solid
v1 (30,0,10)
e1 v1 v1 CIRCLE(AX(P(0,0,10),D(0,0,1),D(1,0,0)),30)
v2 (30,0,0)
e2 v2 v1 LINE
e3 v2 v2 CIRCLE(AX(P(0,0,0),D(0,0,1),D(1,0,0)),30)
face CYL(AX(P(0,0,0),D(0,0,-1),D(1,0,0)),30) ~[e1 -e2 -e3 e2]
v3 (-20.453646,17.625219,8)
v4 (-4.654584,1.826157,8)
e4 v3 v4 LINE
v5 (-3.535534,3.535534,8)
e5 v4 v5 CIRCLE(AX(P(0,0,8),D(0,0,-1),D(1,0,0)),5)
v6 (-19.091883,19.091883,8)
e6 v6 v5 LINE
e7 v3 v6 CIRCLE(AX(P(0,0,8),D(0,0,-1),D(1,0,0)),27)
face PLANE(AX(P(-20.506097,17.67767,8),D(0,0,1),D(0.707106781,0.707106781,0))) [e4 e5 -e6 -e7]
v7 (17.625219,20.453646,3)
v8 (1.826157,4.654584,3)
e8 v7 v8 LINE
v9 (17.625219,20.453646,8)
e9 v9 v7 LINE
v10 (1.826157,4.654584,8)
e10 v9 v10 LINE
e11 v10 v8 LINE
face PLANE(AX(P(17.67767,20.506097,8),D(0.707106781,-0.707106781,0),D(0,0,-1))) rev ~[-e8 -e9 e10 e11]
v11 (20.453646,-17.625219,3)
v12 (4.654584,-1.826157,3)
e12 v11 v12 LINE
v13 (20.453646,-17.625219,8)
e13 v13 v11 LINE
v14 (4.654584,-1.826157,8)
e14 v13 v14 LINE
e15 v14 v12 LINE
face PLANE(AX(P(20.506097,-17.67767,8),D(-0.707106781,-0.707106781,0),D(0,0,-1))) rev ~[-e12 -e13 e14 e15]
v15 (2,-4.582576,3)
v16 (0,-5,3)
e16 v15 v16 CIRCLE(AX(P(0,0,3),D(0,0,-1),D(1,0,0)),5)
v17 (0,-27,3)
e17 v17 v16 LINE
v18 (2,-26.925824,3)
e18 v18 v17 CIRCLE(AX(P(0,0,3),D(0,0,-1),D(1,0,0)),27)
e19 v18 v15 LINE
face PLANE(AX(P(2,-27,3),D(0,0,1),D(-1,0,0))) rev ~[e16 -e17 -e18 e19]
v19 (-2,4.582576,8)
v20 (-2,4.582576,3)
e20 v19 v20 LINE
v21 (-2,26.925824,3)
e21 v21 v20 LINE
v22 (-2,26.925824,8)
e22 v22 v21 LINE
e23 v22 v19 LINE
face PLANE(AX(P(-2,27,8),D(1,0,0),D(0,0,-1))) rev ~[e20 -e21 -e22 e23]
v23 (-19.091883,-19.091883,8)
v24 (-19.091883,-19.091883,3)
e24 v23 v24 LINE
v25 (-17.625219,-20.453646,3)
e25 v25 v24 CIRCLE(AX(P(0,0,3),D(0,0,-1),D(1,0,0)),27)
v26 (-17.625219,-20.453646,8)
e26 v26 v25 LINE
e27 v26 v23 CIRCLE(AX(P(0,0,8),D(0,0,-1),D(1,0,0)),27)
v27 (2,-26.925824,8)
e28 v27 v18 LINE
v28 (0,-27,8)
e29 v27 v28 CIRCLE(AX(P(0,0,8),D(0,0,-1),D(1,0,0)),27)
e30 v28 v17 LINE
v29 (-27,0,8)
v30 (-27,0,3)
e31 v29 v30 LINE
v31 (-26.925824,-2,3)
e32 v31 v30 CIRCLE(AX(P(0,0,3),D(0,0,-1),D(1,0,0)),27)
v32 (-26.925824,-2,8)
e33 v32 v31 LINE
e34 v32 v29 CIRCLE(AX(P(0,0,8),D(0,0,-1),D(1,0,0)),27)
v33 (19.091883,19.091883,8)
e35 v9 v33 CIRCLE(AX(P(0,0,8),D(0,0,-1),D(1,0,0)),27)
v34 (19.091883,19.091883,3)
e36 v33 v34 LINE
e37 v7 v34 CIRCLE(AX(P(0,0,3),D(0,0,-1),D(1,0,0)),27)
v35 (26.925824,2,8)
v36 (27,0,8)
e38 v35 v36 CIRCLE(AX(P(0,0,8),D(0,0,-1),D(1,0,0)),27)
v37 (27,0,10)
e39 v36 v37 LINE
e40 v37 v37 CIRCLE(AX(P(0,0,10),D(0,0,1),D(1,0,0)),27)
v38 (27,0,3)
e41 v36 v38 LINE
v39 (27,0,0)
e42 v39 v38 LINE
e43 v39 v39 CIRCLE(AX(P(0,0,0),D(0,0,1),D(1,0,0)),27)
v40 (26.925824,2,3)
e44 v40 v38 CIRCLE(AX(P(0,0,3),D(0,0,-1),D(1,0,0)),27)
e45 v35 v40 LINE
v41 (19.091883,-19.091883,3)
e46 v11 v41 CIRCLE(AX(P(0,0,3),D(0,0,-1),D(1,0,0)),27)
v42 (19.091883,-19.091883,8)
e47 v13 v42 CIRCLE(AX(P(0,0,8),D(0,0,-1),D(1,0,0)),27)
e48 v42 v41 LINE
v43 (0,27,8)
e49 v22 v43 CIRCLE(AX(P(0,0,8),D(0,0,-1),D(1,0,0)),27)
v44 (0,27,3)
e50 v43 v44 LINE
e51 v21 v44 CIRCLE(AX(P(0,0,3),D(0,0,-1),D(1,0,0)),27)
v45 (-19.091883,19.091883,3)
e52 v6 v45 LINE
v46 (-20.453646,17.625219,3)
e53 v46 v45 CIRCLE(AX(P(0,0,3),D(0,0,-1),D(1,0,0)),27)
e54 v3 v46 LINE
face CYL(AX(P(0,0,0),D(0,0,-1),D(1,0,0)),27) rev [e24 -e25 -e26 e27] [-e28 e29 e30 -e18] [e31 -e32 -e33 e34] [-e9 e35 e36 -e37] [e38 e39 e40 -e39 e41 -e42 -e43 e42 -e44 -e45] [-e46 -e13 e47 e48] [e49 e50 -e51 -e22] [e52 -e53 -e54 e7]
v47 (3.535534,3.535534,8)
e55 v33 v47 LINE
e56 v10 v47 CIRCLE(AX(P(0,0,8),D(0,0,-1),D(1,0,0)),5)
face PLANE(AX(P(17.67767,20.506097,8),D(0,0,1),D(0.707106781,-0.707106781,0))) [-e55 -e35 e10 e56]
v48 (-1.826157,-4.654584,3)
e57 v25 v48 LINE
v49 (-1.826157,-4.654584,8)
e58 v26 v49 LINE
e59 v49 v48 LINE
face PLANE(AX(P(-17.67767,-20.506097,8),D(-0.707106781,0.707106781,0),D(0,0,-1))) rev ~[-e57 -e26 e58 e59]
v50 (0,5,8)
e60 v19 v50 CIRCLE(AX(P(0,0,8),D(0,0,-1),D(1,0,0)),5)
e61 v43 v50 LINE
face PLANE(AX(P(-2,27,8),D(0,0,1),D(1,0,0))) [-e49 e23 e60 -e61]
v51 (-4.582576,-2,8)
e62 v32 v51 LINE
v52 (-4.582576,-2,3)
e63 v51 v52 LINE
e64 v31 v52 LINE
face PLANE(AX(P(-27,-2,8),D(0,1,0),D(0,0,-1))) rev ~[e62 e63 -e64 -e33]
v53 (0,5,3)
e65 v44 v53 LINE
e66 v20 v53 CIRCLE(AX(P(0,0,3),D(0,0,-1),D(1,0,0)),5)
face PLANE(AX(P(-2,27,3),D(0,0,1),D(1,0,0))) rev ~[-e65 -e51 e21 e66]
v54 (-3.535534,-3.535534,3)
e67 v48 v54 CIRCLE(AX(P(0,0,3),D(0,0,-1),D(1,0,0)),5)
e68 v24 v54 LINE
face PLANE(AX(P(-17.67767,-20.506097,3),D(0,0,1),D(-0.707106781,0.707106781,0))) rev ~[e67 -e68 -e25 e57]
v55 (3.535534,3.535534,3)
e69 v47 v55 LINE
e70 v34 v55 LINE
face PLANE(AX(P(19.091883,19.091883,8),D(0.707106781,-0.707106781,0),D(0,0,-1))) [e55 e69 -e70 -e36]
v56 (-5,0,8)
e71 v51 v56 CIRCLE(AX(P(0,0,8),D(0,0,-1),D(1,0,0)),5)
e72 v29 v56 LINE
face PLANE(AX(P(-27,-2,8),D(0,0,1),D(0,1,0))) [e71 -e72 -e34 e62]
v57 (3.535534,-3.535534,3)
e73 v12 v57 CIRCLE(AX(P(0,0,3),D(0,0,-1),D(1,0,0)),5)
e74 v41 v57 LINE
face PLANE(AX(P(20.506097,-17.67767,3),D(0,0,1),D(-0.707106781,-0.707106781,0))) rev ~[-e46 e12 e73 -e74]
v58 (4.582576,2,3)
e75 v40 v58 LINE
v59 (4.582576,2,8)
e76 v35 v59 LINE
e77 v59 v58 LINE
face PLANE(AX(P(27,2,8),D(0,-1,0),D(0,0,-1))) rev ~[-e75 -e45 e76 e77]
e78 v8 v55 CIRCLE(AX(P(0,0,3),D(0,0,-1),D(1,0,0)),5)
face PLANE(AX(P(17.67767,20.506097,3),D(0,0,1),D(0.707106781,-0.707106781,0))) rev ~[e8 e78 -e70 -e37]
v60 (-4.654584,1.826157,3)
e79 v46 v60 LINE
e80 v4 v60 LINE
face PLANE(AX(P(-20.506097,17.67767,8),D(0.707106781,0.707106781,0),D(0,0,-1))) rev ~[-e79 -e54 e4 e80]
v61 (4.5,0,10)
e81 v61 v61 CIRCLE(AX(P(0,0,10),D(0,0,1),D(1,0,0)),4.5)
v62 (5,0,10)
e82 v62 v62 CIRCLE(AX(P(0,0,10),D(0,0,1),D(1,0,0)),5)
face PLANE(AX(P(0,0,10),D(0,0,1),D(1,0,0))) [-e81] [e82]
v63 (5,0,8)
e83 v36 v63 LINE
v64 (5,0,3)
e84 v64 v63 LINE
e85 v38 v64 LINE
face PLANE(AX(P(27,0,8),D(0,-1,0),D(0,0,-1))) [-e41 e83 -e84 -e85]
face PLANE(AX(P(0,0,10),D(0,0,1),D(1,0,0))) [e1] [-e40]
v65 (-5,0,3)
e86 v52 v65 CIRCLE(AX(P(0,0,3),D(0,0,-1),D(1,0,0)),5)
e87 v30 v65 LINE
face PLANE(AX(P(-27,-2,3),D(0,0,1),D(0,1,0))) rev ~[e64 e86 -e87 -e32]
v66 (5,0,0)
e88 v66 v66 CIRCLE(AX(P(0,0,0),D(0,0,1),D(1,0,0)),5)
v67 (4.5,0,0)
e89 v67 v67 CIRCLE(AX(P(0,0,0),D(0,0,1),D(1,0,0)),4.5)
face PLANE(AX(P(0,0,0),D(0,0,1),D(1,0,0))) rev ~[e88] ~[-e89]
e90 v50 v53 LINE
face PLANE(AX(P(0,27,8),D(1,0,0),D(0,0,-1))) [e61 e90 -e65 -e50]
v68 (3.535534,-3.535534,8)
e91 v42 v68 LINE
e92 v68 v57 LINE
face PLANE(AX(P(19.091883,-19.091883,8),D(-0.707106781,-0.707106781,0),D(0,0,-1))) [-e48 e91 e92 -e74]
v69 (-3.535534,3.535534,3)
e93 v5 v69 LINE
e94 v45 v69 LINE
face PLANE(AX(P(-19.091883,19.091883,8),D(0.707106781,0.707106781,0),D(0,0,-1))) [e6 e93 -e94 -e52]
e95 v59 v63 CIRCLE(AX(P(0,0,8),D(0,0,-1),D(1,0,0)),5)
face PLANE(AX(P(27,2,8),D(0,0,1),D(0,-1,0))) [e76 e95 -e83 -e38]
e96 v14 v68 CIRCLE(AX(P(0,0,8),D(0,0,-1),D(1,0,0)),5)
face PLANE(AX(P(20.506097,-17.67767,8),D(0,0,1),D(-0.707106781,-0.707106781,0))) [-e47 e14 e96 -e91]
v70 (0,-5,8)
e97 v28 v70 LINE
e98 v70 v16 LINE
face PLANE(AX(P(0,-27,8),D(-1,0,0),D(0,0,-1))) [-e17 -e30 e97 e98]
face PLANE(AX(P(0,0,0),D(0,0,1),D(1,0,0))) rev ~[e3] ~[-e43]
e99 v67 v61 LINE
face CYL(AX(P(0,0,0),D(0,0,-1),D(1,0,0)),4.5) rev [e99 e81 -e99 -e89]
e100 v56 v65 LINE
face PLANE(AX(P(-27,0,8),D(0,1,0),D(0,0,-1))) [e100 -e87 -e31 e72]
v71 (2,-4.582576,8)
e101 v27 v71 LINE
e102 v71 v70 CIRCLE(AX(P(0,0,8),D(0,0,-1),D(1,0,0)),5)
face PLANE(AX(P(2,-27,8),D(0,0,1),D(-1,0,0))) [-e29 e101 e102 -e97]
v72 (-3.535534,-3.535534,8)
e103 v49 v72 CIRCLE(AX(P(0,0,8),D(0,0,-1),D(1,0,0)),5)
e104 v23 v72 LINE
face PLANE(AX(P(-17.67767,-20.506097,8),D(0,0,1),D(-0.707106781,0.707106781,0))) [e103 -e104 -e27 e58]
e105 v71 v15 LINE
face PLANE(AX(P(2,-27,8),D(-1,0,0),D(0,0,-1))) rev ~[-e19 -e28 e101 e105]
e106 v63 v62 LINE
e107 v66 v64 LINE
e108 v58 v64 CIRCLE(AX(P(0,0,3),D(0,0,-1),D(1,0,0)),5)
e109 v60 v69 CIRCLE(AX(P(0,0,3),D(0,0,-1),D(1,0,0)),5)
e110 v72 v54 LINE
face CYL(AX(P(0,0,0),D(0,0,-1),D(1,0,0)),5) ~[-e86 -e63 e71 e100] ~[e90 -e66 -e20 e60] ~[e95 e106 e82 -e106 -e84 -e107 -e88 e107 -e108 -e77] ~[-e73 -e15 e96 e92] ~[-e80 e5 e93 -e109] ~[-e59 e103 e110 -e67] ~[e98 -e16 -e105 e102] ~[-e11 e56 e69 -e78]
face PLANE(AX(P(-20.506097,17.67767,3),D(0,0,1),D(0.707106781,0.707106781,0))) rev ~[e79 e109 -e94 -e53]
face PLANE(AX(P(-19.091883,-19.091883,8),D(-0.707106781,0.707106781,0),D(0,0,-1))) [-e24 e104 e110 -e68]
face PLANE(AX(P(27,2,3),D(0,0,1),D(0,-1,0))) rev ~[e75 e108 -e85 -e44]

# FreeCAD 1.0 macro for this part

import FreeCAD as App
import Part
import Sketcher


def add_polygon(sketch, points):
    """Adds a closed chain of lines whose ends are joined by coincident constraints."""
    first, n = sketch.GeometryCount, len(points)
    for a, b in zip(points, points[1:] + points[:1]):
        sketch.addGeometry(Part.LineSegment(App.Vector(*a, 0), App.Vector(*b, 0)), False)
    for i in range(n):
        sketch.addConstraint(Sketcher.Constraint("Coincident", first + i, 2, first + (i + 1) % n, 1))

doc = App.newDocument("Part")
body = doc.addObject("PartDesign::Body", "Body")

# Sketch on XY plane
sketch1 = doc.addObject("Sketcher::SketchObject", "Sketch")
body.addObject(sketch1)
sketch1.AttachmentSupport = (doc.XY_Plane, [""])
sketch1.MapMode = "FlatFace"
sketch1.addGeometry(Part.Circle(App.Vector(0, 0, 0), App.Vector(0, 0, 1), 30), False)
sketch1.addGeometry(Part.Circle(App.Vector(0, 0, 0), App.Vector(0, 0, 1), 27), False)
sketch1.addConstraint(Sketcher.Constraint("Coincident", 0, 3, -1, 1))
sketch1.addConstraint(Sketcher.Constraint("Coincident", 1, 3, -1, 1))
sketch1.addConstraint(Sketcher.Constraint("Diameter", 0, 60.0))
sketch1.addConstraint(Sketcher.Constraint("Diameter", 1, 54.0))
pad1 = doc.addObject("PartDesign::Pad", "Pad")
body.addObject(pad1)
pad1.Profile = sketch1
pad1.Length = 10
body2 = doc.addObject("PartDesign::Body", "Body001")

# Sketch on XY plane
sketch2 = doc.addObject("Sketcher::SketchObject", "Sketch001")
body2.addObject(sketch2)
sketch2.AttachmentSupport = (doc.getObject("XY_Plane001"), [""])
sketch2.MapMode = "FlatFace"
sketch2.addGeometry(Part.Circle(App.Vector(0, 0, 0), App.Vector(0, 0, 1), 5), False)
sketch2.addGeometry(Part.Circle(App.Vector(0, 0, 0), App.Vector(0, 0, 1), 4.5), False)
sketch2.addConstraint(Sketcher.Constraint("Coincident", 0, 3, -1, 1))
sketch2.addConstraint(Sketcher.Constraint("Coincident", 1, 3, -1, 1))
sketch2.addConstraint(Sketcher.Constraint("Diameter", 0, 10.0))
sketch2.addConstraint(Sketcher.Constraint("Diameter", 1, 9.0))
pad2 = doc.addObject("PartDesign::Pad", "Pad001")
body2.addObject(pad2)
pad2.Profile = sketch2
pad2.Length = 10
body.AllowCompound = True
doc.recompute()

boolean = doc.addObject("PartDesign::Boolean", "Boolean")
body.addObject(boolean)
boolean.Type = "Fuse"
boolean.addObjects([body2])

# Sketch on YZ plane
sketch3 = doc.addObject("Sketcher::SketchObject", "Sketch002")
body.addObject(sketch3)
sketch3.AttachmentSupport = (doc.YZ_Plane, [""])
sketch3.MapMode = "FlatFace"
sketch3.AttachmentOffset = App.Placement(App.Vector(0, 0, -27), App.Rotation())
add_polygon(sketch3, [(0, 8), (-2, 8), (-2, 3), (0, 3)])  # lines 0-3
sketch3.addConstraint(Sketcher.Constraint("Horizontal", 0))
sketch3.addConstraint(Sketcher.Constraint("Vertical", 1))
sketch3.addConstraint(Sketcher.Constraint("Horizontal", 2))
sketch3.addConstraint(Sketcher.Constraint("Vertical", 3))
sketch3.addConstraint(Sketcher.Constraint("PointOnObject", 2, 2, -2))
sketch3.addConstraint(Sketcher.Constraint("DistanceX", 0, 2, 0, 1, 2.0))
sketch3.addConstraint(Sketcher.Constraint("DistanceY", 1, 2, 1, 1, 5.0))
sketch3.addConstraint(Sketcher.Constraint("DistanceY", -1, 1, 0, 2, 8.0))
pad3 = doc.addObject("PartDesign::Pad", "Pad002")
body.addObject(pad3)
pad3.Profile = sketch3
pad3.Length = 22.417424
doc.recompute()

polarpattern = doc.addObject("PartDesign::PolarPattern", "PolarPattern")
body.addObject(polarpattern)
polarpattern.Originals = [pad3]
polarpattern.Axis = (doc.Z_Axis, [""])
polarpattern.Angle = 360
polarpattern.Occurrences = 8
body.Tip = polarpattern

doc.recompute()
